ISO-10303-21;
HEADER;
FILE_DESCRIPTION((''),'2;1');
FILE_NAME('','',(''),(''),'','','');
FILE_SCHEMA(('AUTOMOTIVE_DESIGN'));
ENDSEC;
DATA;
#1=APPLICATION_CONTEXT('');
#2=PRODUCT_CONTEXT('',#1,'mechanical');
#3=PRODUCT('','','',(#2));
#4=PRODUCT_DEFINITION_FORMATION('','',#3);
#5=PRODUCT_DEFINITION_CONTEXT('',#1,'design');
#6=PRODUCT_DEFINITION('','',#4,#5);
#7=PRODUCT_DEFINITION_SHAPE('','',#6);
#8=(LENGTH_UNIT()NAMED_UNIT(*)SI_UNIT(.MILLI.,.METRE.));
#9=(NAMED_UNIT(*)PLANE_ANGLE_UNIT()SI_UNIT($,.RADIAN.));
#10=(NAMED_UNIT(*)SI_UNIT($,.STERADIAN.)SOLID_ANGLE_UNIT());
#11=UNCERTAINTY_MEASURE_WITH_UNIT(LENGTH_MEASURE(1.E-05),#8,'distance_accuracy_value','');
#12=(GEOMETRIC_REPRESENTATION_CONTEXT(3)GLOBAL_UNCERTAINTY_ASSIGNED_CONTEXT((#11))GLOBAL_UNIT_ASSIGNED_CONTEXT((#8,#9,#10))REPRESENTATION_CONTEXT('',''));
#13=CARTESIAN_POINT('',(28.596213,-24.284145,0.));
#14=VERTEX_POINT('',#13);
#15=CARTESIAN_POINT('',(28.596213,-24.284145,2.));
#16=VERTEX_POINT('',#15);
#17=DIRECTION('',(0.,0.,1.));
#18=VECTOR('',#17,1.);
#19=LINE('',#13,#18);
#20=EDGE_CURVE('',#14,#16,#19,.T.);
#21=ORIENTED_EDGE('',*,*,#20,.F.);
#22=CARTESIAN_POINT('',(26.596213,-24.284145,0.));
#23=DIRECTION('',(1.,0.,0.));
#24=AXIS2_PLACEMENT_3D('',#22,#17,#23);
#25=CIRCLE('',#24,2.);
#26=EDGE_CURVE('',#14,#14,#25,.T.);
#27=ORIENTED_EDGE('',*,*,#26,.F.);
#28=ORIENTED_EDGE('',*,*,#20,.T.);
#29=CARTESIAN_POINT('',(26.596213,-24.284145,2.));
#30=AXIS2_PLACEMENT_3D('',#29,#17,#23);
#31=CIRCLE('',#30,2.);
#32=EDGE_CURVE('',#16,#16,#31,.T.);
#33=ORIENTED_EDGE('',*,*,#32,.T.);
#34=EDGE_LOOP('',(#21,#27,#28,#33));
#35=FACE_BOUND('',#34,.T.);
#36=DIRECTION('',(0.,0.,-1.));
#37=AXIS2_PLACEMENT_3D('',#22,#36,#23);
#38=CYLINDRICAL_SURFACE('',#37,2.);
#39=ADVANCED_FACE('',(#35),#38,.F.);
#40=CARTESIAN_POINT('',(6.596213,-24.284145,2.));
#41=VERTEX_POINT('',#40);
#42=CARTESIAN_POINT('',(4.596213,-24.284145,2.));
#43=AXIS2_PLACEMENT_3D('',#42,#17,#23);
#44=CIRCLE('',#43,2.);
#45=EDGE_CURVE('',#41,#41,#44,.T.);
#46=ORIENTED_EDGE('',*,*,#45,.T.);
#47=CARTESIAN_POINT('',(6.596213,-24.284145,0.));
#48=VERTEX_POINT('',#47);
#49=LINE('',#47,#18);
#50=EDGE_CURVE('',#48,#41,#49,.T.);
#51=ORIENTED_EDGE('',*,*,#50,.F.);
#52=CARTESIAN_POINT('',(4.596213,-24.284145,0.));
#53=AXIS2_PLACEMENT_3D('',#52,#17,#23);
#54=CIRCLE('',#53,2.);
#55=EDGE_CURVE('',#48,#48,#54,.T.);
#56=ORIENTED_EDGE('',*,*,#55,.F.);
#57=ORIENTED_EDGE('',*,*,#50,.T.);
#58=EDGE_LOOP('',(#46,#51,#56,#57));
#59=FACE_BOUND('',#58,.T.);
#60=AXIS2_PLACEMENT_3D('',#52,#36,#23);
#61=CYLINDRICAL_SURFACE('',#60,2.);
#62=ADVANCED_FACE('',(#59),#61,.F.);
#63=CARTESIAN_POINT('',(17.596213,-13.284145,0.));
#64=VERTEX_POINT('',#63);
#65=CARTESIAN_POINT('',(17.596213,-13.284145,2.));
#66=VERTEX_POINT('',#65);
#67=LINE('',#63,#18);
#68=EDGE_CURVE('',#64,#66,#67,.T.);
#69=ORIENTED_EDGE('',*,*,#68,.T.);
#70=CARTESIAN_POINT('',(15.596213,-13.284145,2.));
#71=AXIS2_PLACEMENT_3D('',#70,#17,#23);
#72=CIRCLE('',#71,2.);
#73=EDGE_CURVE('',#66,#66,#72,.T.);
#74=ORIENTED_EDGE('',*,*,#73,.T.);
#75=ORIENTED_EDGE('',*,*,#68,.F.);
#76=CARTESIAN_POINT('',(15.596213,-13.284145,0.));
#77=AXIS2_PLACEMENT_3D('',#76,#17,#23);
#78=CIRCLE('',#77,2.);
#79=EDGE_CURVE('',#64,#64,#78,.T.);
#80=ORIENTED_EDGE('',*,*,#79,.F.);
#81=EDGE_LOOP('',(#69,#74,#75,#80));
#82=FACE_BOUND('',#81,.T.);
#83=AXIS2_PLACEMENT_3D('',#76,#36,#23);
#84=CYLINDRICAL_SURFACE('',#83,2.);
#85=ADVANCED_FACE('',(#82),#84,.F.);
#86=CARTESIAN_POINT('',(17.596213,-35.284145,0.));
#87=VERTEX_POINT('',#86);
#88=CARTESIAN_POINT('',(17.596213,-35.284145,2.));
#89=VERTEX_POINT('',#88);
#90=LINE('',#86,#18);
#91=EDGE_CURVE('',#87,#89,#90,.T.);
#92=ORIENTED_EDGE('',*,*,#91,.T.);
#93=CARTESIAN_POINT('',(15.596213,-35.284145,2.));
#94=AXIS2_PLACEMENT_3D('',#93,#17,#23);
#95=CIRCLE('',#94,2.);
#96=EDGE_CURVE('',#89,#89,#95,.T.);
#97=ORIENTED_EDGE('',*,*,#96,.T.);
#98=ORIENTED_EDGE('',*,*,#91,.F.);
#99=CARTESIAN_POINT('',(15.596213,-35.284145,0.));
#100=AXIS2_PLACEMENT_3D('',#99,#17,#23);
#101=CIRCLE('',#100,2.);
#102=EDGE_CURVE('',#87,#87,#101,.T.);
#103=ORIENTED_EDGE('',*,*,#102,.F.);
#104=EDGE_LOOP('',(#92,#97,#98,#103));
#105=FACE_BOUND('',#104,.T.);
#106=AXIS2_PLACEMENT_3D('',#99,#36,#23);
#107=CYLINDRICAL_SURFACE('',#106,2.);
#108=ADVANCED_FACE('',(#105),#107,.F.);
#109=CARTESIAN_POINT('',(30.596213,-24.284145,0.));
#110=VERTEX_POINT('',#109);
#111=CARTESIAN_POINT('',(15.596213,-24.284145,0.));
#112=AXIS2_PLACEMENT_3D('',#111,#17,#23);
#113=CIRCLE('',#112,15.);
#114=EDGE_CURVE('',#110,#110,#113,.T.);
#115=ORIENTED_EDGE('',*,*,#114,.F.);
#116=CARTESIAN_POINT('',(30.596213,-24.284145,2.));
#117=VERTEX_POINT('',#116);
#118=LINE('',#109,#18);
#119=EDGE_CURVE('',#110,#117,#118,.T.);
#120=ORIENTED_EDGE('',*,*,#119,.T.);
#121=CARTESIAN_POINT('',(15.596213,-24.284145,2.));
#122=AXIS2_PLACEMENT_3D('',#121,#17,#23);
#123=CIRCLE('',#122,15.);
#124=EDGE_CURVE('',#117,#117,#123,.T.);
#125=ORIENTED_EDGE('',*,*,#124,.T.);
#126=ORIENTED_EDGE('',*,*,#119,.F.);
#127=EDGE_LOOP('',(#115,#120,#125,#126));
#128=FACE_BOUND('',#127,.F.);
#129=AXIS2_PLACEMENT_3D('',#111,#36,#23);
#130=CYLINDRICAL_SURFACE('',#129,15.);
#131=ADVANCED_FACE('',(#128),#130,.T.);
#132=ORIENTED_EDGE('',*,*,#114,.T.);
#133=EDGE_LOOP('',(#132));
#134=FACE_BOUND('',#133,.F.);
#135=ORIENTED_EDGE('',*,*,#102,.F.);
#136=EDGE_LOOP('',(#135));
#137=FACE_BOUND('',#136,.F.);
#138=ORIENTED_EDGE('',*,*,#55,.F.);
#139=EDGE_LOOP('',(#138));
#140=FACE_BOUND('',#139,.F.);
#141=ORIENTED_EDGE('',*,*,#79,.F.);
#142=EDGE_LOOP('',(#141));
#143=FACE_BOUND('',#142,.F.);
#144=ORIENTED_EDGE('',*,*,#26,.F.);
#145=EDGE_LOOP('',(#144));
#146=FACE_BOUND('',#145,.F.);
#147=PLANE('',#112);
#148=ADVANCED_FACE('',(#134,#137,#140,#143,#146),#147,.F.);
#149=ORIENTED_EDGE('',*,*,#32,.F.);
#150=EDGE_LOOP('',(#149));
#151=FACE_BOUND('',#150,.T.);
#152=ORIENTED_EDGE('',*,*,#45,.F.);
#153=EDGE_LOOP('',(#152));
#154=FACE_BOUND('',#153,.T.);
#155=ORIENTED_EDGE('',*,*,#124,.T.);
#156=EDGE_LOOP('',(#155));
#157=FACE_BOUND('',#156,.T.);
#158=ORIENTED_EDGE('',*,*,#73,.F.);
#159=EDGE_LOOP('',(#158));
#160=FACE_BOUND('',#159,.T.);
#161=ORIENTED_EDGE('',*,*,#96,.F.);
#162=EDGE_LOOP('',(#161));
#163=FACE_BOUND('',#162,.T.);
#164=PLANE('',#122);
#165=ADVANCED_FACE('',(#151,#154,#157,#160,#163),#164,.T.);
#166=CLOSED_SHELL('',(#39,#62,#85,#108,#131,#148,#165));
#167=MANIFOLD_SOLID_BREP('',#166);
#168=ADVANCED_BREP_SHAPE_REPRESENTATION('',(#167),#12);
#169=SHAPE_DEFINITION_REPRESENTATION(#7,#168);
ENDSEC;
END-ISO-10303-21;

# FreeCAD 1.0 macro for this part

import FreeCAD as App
import Part
import Sketcher
from FreeCAD import Vector

doc = App.newDocument("Part")
body = doc.addObject("PartDesign::Body", "Body")

sketch1 = doc.addObject("Sketcher::SketchObject", "Sketch")
body.addObject(sketch1)
sketch1.AttachmentSupport = (doc.XY_Plane, [""])
sketch1.MapMode = "FlatFace"
sketch1.addGeometry([
    Part.Circle(Vector(15.6, -24.3, 0), Vector(0, 0, 1), 15),
    Part.Circle(Vector(15.6, -35.3, 0), Vector(0, 0, 1), 2),
    Part.Circle(Vector(4.6, -24.3, 0), Vector(0, 0, 1), 2),
    Part.Circle(Vector(26.6, -24.3, 0), Vector(0, 0, 1), 2),
    Part.Circle(Vector(15.6, -13.3, 0), Vector(0, 0, 1), 2),
], False)
sketch1.addConstraint([
    Sketcher.Constraint("Equal", 1, 2),
    Sketcher.Constraint("Equal", 2, 3),
    Sketcher.Constraint("Equal", 3, 4),
    Sketcher.Constraint("Horizontal", 0, 3, 2, 3),
    Sketcher.Constraint("Horizontal", 2, 3, 3, 3),
    Sketcher.Constraint("Vertical", 0, 3, 1, 3),
    Sketcher.Constraint("Vertical", 1, 3, 4, 3),
    Sketcher.Constraint("Diameter", 0, 30.0),
    Sketcher.Constraint("Diameter", 1, 4.0),
    Sketcher.Constraint("DistanceY", 1, 3, 0, 3, 11.0),
    Sketcher.Constraint("DistanceX", 2, 3, 0, 3, 11.0),
    Sketcher.Constraint("DistanceX", 0, 3, 3, 3, 11.0),
    Sketcher.Constraint("DistanceY", 0, 3, 4, 3, 11.0),
    Sketcher.Constraint("DistanceX", -1, 1, 0, 3, 15.596213),
    Sketcher.Constraint("DistanceY", 0, 3, -1, 1, 24.284145),
])
pad1 = doc.addObject("PartDesign::Pad", "Pad")
body.addObject(pad1)
pad1.Profile = sketch1
pad1.Length = 2

doc.recompute()
